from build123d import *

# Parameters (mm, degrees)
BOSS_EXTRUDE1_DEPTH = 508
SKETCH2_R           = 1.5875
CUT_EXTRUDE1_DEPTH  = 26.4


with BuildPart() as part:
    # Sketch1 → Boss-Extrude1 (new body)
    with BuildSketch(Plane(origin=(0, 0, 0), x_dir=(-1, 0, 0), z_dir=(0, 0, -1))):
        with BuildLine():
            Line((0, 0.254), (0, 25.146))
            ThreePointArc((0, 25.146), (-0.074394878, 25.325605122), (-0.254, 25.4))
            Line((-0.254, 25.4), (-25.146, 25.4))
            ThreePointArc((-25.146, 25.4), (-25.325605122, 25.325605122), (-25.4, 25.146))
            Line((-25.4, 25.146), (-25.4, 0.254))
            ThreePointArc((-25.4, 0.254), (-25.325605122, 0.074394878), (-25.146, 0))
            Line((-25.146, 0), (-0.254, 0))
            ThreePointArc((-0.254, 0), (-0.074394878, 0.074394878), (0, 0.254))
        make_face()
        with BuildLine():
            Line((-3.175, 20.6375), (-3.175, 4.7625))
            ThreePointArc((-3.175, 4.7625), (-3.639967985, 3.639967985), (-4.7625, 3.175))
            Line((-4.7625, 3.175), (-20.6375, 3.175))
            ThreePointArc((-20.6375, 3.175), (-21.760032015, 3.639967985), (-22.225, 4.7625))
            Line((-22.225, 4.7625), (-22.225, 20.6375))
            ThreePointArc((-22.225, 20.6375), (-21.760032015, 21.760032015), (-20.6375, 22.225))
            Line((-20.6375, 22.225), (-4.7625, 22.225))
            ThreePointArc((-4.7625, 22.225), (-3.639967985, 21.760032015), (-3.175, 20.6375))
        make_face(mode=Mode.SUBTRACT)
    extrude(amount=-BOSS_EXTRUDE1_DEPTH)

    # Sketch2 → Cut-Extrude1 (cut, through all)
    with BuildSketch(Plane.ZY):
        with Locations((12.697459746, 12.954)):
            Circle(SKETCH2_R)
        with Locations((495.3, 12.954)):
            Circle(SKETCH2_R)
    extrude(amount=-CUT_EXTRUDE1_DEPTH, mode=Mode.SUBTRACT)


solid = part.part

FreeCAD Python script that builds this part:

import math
import FreeCAD as App
import Part
import Sketcher
from FreeCAD import Vector
Q = App.Units.Quantity

doc = App.newDocument("Part")
body = doc.addObject("PartDesign::Body", "Body")

sketch1 = body.newObject("Sketcher::SketchObject", "Sketch")
sketch1.AttachmentSupport = (doc.getObject("XY_Plane"), [""])
sketch1.MapMode = "FlatFace"
sketch1.addGeometry([
    Part.LineSegment(Vector(0, 0.25, 0), Vector(0, 25.15, 0)),
    Part.ArcOfCircle(Part.Circle(Vector(0.25, 25.15, 0), Vector(0, 0, 1), 0.25), math.radians(90), math.radians(180)),
    Part.LineSegment(Vector(0.25, 25.4, 0), Vector(25.15, 25.4, 0)),
    Part.ArcOfCircle(Part.Circle(Vector(25.15, 25.15, 0), Vector(0, 0, 1), 0.25), math.radians(0), math.radians(90)),
    Part.LineSegment(Vector(25.4, 25.15, 0), Vector(25.4, 0.25, 0)),
    Part.ArcOfCircle(Part.Circle(Vector(25.15, 0.25, 0), Vector(0, 0, 1), 0.25), math.radians(-90), math.radians(0)),
    Part.LineSegment(Vector(25.15, 0, 0), Vector(0.25, 0, 0)),
    Part.ArcOfCircle(Part.Circle(Vector(0.25, 0.25, 0), Vector(0, 0, 1), 0.25), math.radians(-180), math.radians(-90)),
    Part.ArcOfCircle(Part.Circle(Vector(4.76, 20.64, 0), Vector(0, 0, 1), 1.59), math.radians(90), math.radians(180)),
    Part.LineSegment(Vector(3.17, 20.64, 0), Vector(3.17, 4.76, 0)),
    Part.ArcOfCircle(Part.Circle(Vector(4.76, 4.76, 0), Vector(0, 0, 1), 1.59), math.radians(180), math.radians(270)),
    Part.LineSegment(Vector(4.76, 3.17, 0), Vector(20.64, 3.17, 0)),
    Part.ArcOfCircle(Part.Circle(Vector(20.64, 4.76, 0), Vector(0, 0, 1), 1.59), math.radians(-90), math.radians(0)),
    Part.LineSegment(Vector(22.23, 4.76, 0), Vector(22.23, 20.64, 0)),
    Part.ArcOfCircle(Part.Circle(Vector(20.64, 20.64, 0), Vector(0, 0, 1), 1.59), math.radians(0), math.radians(90)),
    Part.LineSegment(Vector(20.64, 22.23, 0), Vector(4.76, 22.23, 0)),
], False)
sketch1.addConstraint([
    Sketcher.Constraint("Tangent", 0, 2, 1, 2),
    Sketcher.Constraint("Tangent", 1, 1, 2, 1),
    Sketcher.Constraint("Tangent", 2, 2, 3, 2),
    Sketcher.Constraint("Tangent", 3, 1, 4, 1),
    Sketcher.Constraint("Tangent", 4, 2, 5, 2),
    Sketcher.Constraint("Tangent", 5, 1, 6, 1),
    Sketcher.Constraint("Tangent", 6, 2, 7, 2),
    Sketcher.Constraint("Tangent", 7, 1, 0, 1),
    Sketcher.Constraint("Tangent", 8, 2, 9, 1),
    Sketcher.Constraint("Tangent", 9, 2, 10, 1),
    Sketcher.Constraint("Tangent", 10, 2, 11, 1),
    Sketcher.Constraint("Tangent", 11, 2, 12, 1),
    Sketcher.Constraint("Tangent", 12, 2, 13, 1),
    Sketcher.Constraint("Tangent", 13, 2, 14, 1),
    Sketcher.Constraint("Tangent", 14, 2, 15, 1),
    Sketcher.Constraint("Tangent", 15, 2, 8, 1),
    Sketcher.Constraint("Vertical", 0),
    Sketcher.Constraint("Horizontal", 2),
    Sketcher.Constraint("Vertical", 4),
    Sketcher.Constraint("Horizontal", 6),
    Sketcher.Constraint("Vertical", 9),
    Sketcher.Constraint("Horizontal", 11),
    Sketcher.Constraint("Vertical", 13),
    Sketcher.Constraint("Horizontal", 15),
    Sketcher.Constraint("Equal", 1, 3),
    Sketcher.Constraint("Equal", 3, 5),
    Sketcher.Constraint("Equal", 5, 7),
    Sketcher.Constraint("Equal", 8, 10),
    Sketcher.Constraint("Equal", 10, 12),
    Sketcher.Constraint("Equal", 12, 14),
    Sketcher.Constraint("PointOnObject", 0, 2, -2),
    Sketcher.Constraint("PointOnObject", 5, 1, -1),
    Sketcher.Constraint("Equal", 6, 0),
    Sketcher.Constraint("Equal", 15, 9),
    Sketcher.Constraint("Radius", 1, Q("0.01 in")),
    Sketcher.Constraint("DistanceY", -1, 1, 1, 1, Q("1 in")),
    Sketcher.Constraint("Radius", 8, Q("0.0625 in")),
    Sketcher.Constraint("DistanceX", 11, 1, 11, 2, Q("0.625 in")),
    Sketcher.Constraint("DistanceX", -1, 1, 8, 3, Q("0.1875 in")),
    Sketcher.Constraint("DistanceY", -1, 1, 8, 3, Q("0.8125 in")),
])
pad1 = body.newObject("PartDesign::Pad", "Pad")
pad1.Profile = sketch1
pad1.Length = Q("20 in")

sketch2 = body.newObject("Sketcher::SketchObject", "Sketch001")
sketch2.AttachmentSupport = (doc.getObject("YZ_Plane"), [""])
sketch2.MapMode = "FlatFace"
sketch2.addGeometry([
    Part.Circle(Vector(13, 12.7, 0), Vector(0, 0, 1), 1.6),
    Part.Circle(Vector(13, 495.3, 0), Vector(0, 0, 1), 1.6),
], False)
sketch2.addConstraint([
    Sketcher.Constraint("Equal", 0, 1),
    Sketcher.Constraint("Vertical", 0, 3, 1, 3),
    Sketcher.Constraint("Diameter", 0, Q("0.125 in")),
    Sketcher.Constraint("DistanceY", -1, 1, 1, 3, Q("19.5 in")),
    Sketcher.Constraint("DistanceX", -1, 1, 0, 3, Q("0.51 in")),
    Sketcher.Constraint("DistanceY", -1, 1, 0, 3, Q("0.4999 in")),
])
pocket1 = body.newObject("PartDesign::Pocket", "Pocket")
pocket1.Profile = sketch2
pocket1.Type = "ThroughAll"
pocket1.Reversed = True

doc.recompute()
